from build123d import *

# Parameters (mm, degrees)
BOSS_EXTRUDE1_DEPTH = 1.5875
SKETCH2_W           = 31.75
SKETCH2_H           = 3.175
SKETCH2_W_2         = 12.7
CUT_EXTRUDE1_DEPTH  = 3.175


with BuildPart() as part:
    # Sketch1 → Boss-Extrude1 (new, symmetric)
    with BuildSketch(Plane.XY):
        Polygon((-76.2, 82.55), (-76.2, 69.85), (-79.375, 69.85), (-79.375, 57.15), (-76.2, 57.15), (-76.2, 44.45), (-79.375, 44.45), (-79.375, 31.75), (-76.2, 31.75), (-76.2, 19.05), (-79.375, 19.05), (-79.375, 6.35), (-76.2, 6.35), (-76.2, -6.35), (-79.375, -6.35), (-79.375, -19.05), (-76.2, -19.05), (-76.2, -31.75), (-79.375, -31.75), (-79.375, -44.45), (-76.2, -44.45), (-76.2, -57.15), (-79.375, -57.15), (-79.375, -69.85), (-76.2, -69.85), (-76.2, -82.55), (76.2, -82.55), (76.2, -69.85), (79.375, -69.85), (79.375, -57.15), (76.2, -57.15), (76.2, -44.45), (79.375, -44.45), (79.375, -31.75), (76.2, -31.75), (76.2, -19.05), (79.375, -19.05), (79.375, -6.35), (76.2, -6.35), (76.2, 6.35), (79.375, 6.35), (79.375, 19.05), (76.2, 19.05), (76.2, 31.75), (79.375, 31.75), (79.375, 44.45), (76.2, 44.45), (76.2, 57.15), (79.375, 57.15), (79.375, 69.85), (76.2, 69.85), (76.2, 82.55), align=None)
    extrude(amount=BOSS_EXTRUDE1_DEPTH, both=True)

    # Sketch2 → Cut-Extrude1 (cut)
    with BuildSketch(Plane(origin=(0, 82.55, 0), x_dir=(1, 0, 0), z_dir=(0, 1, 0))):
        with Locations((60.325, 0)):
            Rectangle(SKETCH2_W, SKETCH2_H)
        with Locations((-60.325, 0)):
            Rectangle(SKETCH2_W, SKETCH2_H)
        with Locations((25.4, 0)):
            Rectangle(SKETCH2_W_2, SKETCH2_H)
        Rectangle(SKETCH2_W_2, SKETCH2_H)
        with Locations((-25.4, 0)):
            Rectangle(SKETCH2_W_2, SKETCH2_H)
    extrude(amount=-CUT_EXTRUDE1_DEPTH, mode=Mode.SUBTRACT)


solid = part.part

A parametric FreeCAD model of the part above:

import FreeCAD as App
import Part
import Sketcher
from FreeCAD import Vector
Q = App.Units.Quantity


def add_polygon(sketch, points):
    """Adds a closed chain of lines whose ends are joined by coincident constraints."""
    first, n = sketch.GeometryCount, len(points)
    for a, b in zip(points, points[1:] + points[:1]):
        sketch.addGeometry(Part.LineSegment(App.Vector(*a, 0), App.Vector(*b, 0)), False)
    for i in range(n):
        sketch.addConstraint(Sketcher.Constraint("Coincident", first + i, 2, first + (i + 1) % n, 1))

doc = App.newDocument("Part")
body = doc.addObject("PartDesign::Body", "Body")

# Sketch on XY plane
sketch1 = body.newObject("Sketcher::SketchObject", "Sketch")
sketch1.AttachmentSupport = (doc.getObject("XY_Plane"), [""])
sketch1.MapMode = "FlatFace"
add_polygon(sketch1, [(-76.2, 82.55), (-76.2, 69.85), (-79.375, 69.85), (-79.375, 57.15), (-76.2, 57.15), (-76.2, 44.45), (-79.375, 44.45), (-79.375, 31.75), (-76.2, 31.75), (-76.2, 19.05), (-79.375, 19.05), (-79.375, 6.35), (-76.2, 6.35), (-76.2, -6.35), (-79.375, -6.35), (-79.375, -19.05), (-76.2, -19.05), (-76.2, -31.75), (-79.375, -31.75), (-79.375, -44.45), (-76.2, -44.45), (-76.2, -57.15), (-79.375, -57.15), (-79.375, -69.85), (-76.2, -69.85), (-76.2, -82.55), (76.2, -82.55), (76.2, -69.85), (79.375, -69.85), (79.375, -57.15), (76.2, -57.15), (76.2, -44.45), (79.375, -44.45), (79.375, -31.75), (76.2, -31.75), (76.2, -19.05), (79.375, -19.05), (79.375, -6.35), (76.2, -6.35), (76.2, 6.35), (79.375, 6.35), (79.375, 19.05), (76.2, 19.05), (76.2, 31.75), (79.375, 31.75), (79.375, 44.45), (76.2, 44.45), (76.2, 57.15), (79.375, 57.15), (79.375, 69.85), (76.2, 69.85), (76.2, 82.55)])  # lines 0-51
sketch1.addConstraint(Sketcher.Constraint("Vertical", 0))
sketch1.addConstraint(Sketcher.Constraint("Horizontal", 1))
sketch1.addConstraint(Sketcher.Constraint("Vertical", 2))
sketch1.addConstraint(Sketcher.Constraint("Horizontal", 3))
sketch1.addConstraint(Sketcher.Constraint("Vertical", 4))
sketch1.addConstraint(Sketcher.Constraint("Horizontal", 5))
sketch1.addConstraint(Sketcher.Constraint("Vertical", 6))
sketch1.addConstraint(Sketcher.Constraint("Horizontal", 7))
sketch1.addConstraint(Sketcher.Constraint("Vertical", 8))
sketch1.addConstraint(Sketcher.Constraint("Horizontal", 9))
sketch1.addConstraint(Sketcher.Constraint("Vertical", 10))
sketch1.addConstraint(Sketcher.Constraint("Horizontal", 11))
sketch1.addConstraint(Sketcher.Constraint("Vertical", 12))
sketch1.addConstraint(Sketcher.Constraint("Horizontal", 13))
sketch1.addConstraint(Sketcher.Constraint("Vertical", 14))
sketch1.addConstraint(Sketcher.Constraint("Horizontal", 15))
sketch1.addConstraint(Sketcher.Constraint("Vertical", 16))
sketch1.addConstraint(Sketcher.Constraint("Horizontal", 17))
sketch1.addConstraint(Sketcher.Constraint("Vertical", 18))
sketch1.addConstraint(Sketcher.Constraint("Horizontal", 19))
sketch1.addConstraint(Sketcher.Constraint("Vertical", 20))
sketch1.addConstraint(Sketcher.Constraint("Horizontal", 21))
sketch1.addConstraint(Sketcher.Constraint("Vertical", 22))
sketch1.addConstraint(Sketcher.Constraint("Horizontal", 23))
sketch1.addConstraint(Sketcher.Constraint("Vertical", 24))
sketch1.addConstraint(Sketcher.Constraint("Horizontal", 25))
sketch1.addConstraint(Sketcher.Constraint("Vertical", 26))
sketch1.addConstraint(Sketcher.Constraint("Horizontal", 27))
sketch1.addConstraint(Sketcher.Constraint("Vertical", 28))
sketch1.addConstraint(Sketcher.Constraint("Horizontal", 29))
sketch1.addConstraint(Sketcher.Constraint("Vertical", 30))
sketch1.addConstraint(Sketcher.Constraint("Horizontal", 31))
sketch1.addConstraint(Sketcher.Constraint("Vertical", 32))
sketch1.addConstraint(Sketcher.Constraint("Horizontal", 33))
sketch1.addConstraint(Sketcher.Constraint("Vertical", 34))
sketch1.addConstraint(Sketcher.Constraint("Horizontal", 35))
sketch1.addConstraint(Sketcher.Constraint("Vertical", 36))
sketch1.addConstraint(Sketcher.Constraint("Horizontal", 37))
sketch1.addConstraint(Sketcher.Constraint("Vertical", 38))
sketch1.addConstraint(Sketcher.Constraint("Horizontal", 39))
sketch1.addConstraint(Sketcher.Constraint("Vertical", 40))
sketch1.addConstraint(Sketcher.Constraint("Horizontal", 41))
sketch1.addConstraint(Sketcher.Constraint("Vertical", 42))
sketch1.addConstraint(Sketcher.Constraint("Horizontal", 43))
sketch1.addConstraint(Sketcher.Constraint("Vertical", 44))
sketch1.addConstraint(Sketcher.Constraint("Horizontal", 45))
sketch1.addConstraint(Sketcher.Constraint("Vertical", 46))
sketch1.addConstraint(Sketcher.Constraint("Horizontal", 47))
sketch1.addConstraint(Sketcher.Constraint("Vertical", 48))
sketch1.addConstraint(Sketcher.Constraint("Horizontal", 49))
sketch1.addConstraint(Sketcher.Constraint("Vertical", 50))
sketch1.addConstraint(Sketcher.Constraint("Horizontal", 51))
sketch1.addConstraint(Sketcher.Constraint("Symmetric", 0, 2, 26, 2, -1, 1))
sketch1.addConstraint(Sketcher.Constraint("Symmetric", 2, 2, 28, 2, -1, 1))
sketch1.addConstraint(Sketcher.Constraint("Symmetric", 4, 2, 30, 2, -1, 1))
sketch1.addConstraint(Sketcher.Constraint("Symmetric", 6, 2, 32, 2, -1, 1))
sketch1.addConstraint(Sketcher.Constraint("Symmetric", 8, 2, 34, 2, -1, 1))
sketch1.addConstraint(Sketcher.Constraint("Symmetric", 10, 2, 36, 2, -1, 1))
sketch1.addConstraint(Sketcher.Constraint("Symmetric", 12, 2, 38, 2, -1, 1))
sketch1.addConstraint(Sketcher.Constraint("Symmetric", 14, 2, 40, 2, -1, 1))
sketch1.addConstraint(Sketcher.Constraint("Symmetric", 16, 2, 42, 2, -1, 1))
sketch1.addConstraint(Sketcher.Constraint("Symmetric", 18, 2, 44, 2, -1, 1))
sketch1.addConstraint(Sketcher.Constraint("Symmetric", 20, 2, 46, 2, -1, 1))
sketch1.addConstraint(Sketcher.Constraint("Symmetric", 22, 2, 48, 2, -1, 1))
sketch1.addConstraint(Sketcher.Constraint("Symmetric", 24, 2, 50, 2, -1, 1))
sketch1.addConstraint(Sketcher.Constraint("Symmetric", 23, 2, 26, 2, -2))
sketch1.addConstraint(Sketcher.Constraint("Symmetric", 21, 2, 28, 2, -2))
sketch1.addConstraint(Sketcher.Constraint("Symmetric", 19, 2, 30, 2, -2))
sketch1.addConstraint(Sketcher.Constraint("Symmetric", 17, 2, 32, 2, -2))
sketch1.addConstraint(Sketcher.Constraint("Symmetric", 15, 2, 34, 2, -2))
sketch1.addConstraint(Sketcher.Constraint("Symmetric", 13, 2, 36, 2, -2))
sketch1.addConstraint(Sketcher.Constraint("Vertical", 0, 2, 3, 2))
sketch1.addConstraint(Sketcher.Constraint("Vertical", 2, 2, 5, 2))
sketch1.addConstraint(Sketcher.Constraint("Vertical", 4, 2, 7, 2))
sketch1.addConstraint(Sketcher.Constraint("Vertical", 6, 2, 9, 2))
sketch1.addConstraint(Sketcher.Constraint("Vertical", 8, 2, 11, 2))
sketch1.addConstraint(Sketcher.Constraint("Equal", 0, 2))
sketch1.addConstraint(Sketcher.Constraint("Equal", 2, 4))
sketch1.addConstraint(Sketcher.Constraint("Equal", 4, 6))
sketch1.addConstraint(Sketcher.Constraint("Equal", 6, 8))
sketch1.addConstraint(Sketcher.Constraint("Equal", 8, 10))
sketch1.addConstraint(Sketcher.Constraint("Equal", 10, 12))
sketch1.addConstraint(Sketcher.Constraint("DistanceX", 25, 1, 25, 2, Q("6 in")))
sketch1.addConstraint(Sketcher.Constraint("DistanceY", 0, 2, 0, 1, Q("0.5 in")))
sketch1.addConstraint(Sketcher.Constraint("DistanceX", 1, 2, 1, 1, Q("0.125 in")))
pad1 = body.newObject("PartDesign::Pad", "Pad")
pad1.Profile = sketch1
pad1.Length = Q("0.125 in")
pad1.Midplane = True

# Sketch on XZ plane
sketch2 = body.newObject("Sketcher::SketchObject", "Sketch001")
sketch2.AttachmentSupport = (doc.getObject("XZ_Plane"), [""])
sketch2.MapMode = "FlatFace"
sketch2.AttachmentOffset = App.Placement(Vector(0, 0, -3.25 * 25.4), App.Rotation())
add_polygon(sketch2, [(44.45, -1.5875), (44.45, 1.5875), (76.2, 1.5875), (76.2, -1.5875)])  # lines 0-3
add_polygon(sketch2, [(-76.2, -1.5875), (-76.2, 1.5875), (-44.45, 1.5875), (-44.45, -1.5875)])  # lines 4-7
add_polygon(sketch2, [(19.05, -1.5875), (19.05, 1.5875), (31.75, 1.5875), (31.75, -1.5875)])  # lines 8-11
add_polygon(sketch2, [(-6.35, -1.5875), (-6.35, 1.5875), (6.35, 1.5875), (6.35, -1.5875)])  # lines 12-15
add_polygon(sketch2, [(-31.75, -1.5875), (-31.75, 1.5875), (-19.05, 1.5875), (-19.05, -1.5875)])  # lines 16-19
sketch2.addConstraint(Sketcher.Constraint("Vertical", 0))
sketch2.addConstraint(Sketcher.Constraint("Horizontal", 1))
sketch2.addConstraint(Sketcher.Constraint("Vertical", 2))
sketch2.addConstraint(Sketcher.Constraint("Horizontal", 3))
sketch2.addConstraint(Sketcher.Constraint("Vertical", 4))
sketch2.addConstraint(Sketcher.Constraint("Horizontal", 5))
sketch2.addConstraint(Sketcher.Constraint("Vertical", 6))
sketch2.addConstraint(Sketcher.Constraint("Horizontal", 7))
sketch2.addConstraint(Sketcher.Constraint("Vertical", 8))
sketch2.addConstraint(Sketcher.Constraint("Horizontal", 9))
sketch2.addConstraint(Sketcher.Constraint("Vertical", 10))
sketch2.addConstraint(Sketcher.Constraint("Horizontal", 11))
sketch2.addConstraint(Sketcher.Constraint("Vertical", 12))
sketch2.addConstraint(Sketcher.Constraint("Horizontal", 13))
sketch2.addConstraint(Sketcher.Constraint("Vertical", 14))
sketch2.addConstraint(Sketcher.Constraint("Horizontal", 15))
sketch2.addConstraint(Sketcher.Constraint("Vertical", 16))
sketch2.addConstraint(Sketcher.Constraint("Horizontal", 17))
sketch2.addConstraint(Sketcher.Constraint("Vertical", 18))
sketch2.addConstraint(Sketcher.Constraint("Horizontal", 19))
sketch2.addConstraint(Sketcher.Constraint("Symmetric", 2, 2, 4, 2, -1, 1))
sketch2.addConstraint(Sketcher.Constraint("Symmetric", 0, 2, 6, 2, -1, 1))
sketch2.addConstraint(Sketcher.Constraint("Symmetric", 12, 2, 14, 2, -1, 1))
sketch2.addConstraint(Sketcher.Constraint("Symmetric", 10, 2, 16, 2, -1, 1))
sketch2.addConstraint(Sketcher.Constraint("Symmetric", 8, 2, 18, 2, -1, 1))
sketch2.addConstraint(Sketcher.Constraint("Horizontal", 1, 2, 4, 2))
sketch2.addConstraint(Sketcher.Constraint("Horizontal", 5, 2, 8, 2))
sketch2.addConstraint(Sketcher.Constraint("Horizontal", 7, 2, 10, 2))
sketch2.addConstraint(Sketcher.Constraint("Horizontal", 9, 2, 12, 2))
sketch2.addConstraint(Sketcher.Constraint("Equal", 11, 13))
sketch2.addConstraint(Sketcher.Constraint("DistanceX", 9, 1, 9, 2, Q("0.5 in")))
sketch2.addConstraint(Sketcher.Constraint("DistanceX", -1, 1, 1, 2, Q("3 in")))
sketch2.addConstraint(Sketcher.Constraint("DistanceX", 8, 2, 0, 2, Q("1 in")))
sketch2.addConstraint(Sketcher.Constraint("DistanceX", 12, 2, 8, 2, Q("1 in")))
sketch2.addConstraint(Sketcher.Constraint("DistanceY", 0, 1, 0, 2, Q("0.125 in")))
pocket1 = body.newObject("PartDesign::Pocket", "Pocket")
pocket1.Profile = sketch2
pocket1.Length = Q("0.125 in")
pocket1.Reversed = True

doc.recompute()
